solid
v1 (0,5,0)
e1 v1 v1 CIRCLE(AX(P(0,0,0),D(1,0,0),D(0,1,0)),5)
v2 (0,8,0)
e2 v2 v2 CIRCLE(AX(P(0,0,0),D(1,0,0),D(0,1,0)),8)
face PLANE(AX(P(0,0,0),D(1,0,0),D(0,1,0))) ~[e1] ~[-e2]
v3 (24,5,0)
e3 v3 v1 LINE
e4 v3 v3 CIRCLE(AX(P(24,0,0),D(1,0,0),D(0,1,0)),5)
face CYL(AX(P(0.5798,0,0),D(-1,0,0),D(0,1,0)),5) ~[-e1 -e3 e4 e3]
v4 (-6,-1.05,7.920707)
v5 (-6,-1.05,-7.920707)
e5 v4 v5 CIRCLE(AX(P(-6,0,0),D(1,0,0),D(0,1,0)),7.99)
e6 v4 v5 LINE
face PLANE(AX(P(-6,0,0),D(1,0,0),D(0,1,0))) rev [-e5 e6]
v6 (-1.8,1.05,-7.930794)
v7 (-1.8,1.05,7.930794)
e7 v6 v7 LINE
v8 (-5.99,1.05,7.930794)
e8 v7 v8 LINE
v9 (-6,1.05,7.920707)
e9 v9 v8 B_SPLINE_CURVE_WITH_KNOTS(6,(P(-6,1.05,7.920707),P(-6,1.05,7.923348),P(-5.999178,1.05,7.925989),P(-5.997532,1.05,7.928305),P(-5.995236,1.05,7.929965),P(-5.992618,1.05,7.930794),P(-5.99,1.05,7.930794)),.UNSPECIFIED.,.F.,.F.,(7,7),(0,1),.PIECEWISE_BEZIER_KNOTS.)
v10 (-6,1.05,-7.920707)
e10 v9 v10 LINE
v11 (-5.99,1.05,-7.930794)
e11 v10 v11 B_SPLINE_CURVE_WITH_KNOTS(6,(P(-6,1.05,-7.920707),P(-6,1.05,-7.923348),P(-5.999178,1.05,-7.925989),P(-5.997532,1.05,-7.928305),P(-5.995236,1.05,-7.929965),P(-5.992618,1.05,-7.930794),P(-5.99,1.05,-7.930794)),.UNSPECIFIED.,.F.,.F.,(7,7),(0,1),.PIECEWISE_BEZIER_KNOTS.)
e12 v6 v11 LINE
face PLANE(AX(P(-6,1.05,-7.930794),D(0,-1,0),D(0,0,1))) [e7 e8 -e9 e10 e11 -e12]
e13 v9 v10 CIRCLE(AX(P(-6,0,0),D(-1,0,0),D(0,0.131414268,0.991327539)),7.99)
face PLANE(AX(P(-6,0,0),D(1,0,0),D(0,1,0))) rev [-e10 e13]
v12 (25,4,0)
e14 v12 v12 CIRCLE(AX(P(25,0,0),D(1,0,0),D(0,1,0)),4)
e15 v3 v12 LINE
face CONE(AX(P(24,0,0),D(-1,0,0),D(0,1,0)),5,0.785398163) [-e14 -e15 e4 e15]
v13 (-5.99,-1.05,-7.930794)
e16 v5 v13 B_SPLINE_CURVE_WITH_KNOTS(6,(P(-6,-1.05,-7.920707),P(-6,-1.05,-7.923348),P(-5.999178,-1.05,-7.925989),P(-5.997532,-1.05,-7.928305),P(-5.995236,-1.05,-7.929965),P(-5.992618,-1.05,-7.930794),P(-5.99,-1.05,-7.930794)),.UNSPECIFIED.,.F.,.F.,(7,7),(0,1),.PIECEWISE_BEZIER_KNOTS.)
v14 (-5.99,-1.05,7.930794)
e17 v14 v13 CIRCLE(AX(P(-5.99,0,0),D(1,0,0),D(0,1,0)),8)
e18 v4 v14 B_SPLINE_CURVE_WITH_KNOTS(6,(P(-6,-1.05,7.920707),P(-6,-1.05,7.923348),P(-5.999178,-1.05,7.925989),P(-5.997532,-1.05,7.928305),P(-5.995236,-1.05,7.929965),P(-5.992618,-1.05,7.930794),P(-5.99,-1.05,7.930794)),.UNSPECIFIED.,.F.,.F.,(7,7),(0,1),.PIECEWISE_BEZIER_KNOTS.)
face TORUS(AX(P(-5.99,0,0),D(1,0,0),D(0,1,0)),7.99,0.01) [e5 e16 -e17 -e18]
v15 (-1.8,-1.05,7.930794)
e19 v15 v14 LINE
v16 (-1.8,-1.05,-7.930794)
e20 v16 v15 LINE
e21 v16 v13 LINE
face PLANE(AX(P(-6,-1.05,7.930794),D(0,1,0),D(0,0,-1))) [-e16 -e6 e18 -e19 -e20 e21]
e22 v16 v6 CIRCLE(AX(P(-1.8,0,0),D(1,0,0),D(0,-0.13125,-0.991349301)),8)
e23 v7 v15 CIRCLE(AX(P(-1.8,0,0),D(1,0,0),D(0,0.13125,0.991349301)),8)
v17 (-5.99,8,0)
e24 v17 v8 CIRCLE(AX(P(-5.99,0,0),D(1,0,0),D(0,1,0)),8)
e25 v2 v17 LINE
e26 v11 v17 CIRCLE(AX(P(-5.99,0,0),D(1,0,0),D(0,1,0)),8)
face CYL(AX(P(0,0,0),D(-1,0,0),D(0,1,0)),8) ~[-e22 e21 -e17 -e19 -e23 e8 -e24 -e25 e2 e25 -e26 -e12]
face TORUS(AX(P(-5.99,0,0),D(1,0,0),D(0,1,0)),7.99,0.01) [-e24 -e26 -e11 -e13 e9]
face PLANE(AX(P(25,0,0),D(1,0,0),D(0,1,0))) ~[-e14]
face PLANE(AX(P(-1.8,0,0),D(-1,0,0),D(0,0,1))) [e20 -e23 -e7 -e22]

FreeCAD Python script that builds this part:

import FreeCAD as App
import Part
import Sketcher

V = App.Vector
Q = App.Units.Quantity


def edges_at(feature, points):
    """Names of the edges that pass closest to the given points."""
    edges = feature.Shape.Edges
    near = lambda p: min(range(len(edges)), key=lambda i: edges[i].distToShape(Part.Vertex(*p))[0])
    return sorted({f"Edge{near(p) + 1}" for p in points})


def add_polygon(sketch, points):
    """Adds a closed chain of lines whose ends are joined by coincident constraints."""
    first, n = sketch.GeometryCount, len(points)
    for a, b in zip(points, points[1:] + points[:1]):
        sketch.addGeometry(Part.LineSegment(App.Vector(*a, 0), App.Vector(*b, 0)), False)
    for i in range(n):
        sketch.addConstraint(Sketcher.Constraint("Coincident", first + i, 2, first + (i + 1) % n, 1))

doc = App.newDocument("Part")
body = doc.addObject("PartDesign::Body", "Body")

sketch1 = body.newObject("Sketcher::SketchObject", "Sketch")
sketch1.AttachmentSupport = (doc.getObject("XY_Plane"), [""])
sketch1.MapMode = "FlatFace"
add_polygon(sketch1, [(-6, 8), (-6, 0), (25, 0), (25, 5), (0, 5), (0, 8)])
sketch1.addConstraint(Sketcher.Constraint("Vertical", 0))
sketch1.addConstraint(Sketcher.Constraint("Horizontal", 1))
sketch1.addConstraint(Sketcher.Constraint("Vertical", 2))
sketch1.addConstraint(Sketcher.Constraint("Horizontal", 3))
sketch1.addConstraint(Sketcher.Constraint("Vertical", 4))
sketch1.addConstraint(Sketcher.Constraint("Horizontal", 5))
sketch1.addConstraint(Sketcher.Constraint("PointOnObject", 0, 2, -1))
sketch1.addConstraint(Sketcher.Constraint("PointOnObject", 3, 2, -2))
sketch1.addConstraint(Sketcher.Constraint("DistanceX", 3, 2, 3, 1, Q("25 mm")))
sketch1.addConstraint(Sketcher.Constraint("DistanceX", 5, 2, 5, 1, Q("6 mm")))
sketch1.addConstraint(Sketcher.Constraint("DistanceY", 0, 2, 0, 1, Q("8 mm")))
sketch1.addConstraint(Sketcher.Constraint("DistanceY", 2, 1, 2, 2, Q("5 mm")))
revolution = body.newObject("PartDesign::Revolution", "Revolution")
revolution.Profile = sketch1
revolution.ReferenceAxis = (sketch1, ["H_Axis"])
revolution.Angle = 360
doc.recompute()

fillet = body.newObject("PartDesign::Fillet", "Fillet")
fillet.Base = (revolution, edges_at(revolution, [(-6, -8, 0)]))
fillet.Radius = 0.01

sketch2 = body.newObject("Sketcher::SketchObject", "Sketch001")
sketch2.AttachmentSupport = (doc.getObject("YZ_Plane"), [""])
sketch2.MapMode = "FlatFace"
sketch2.AttachmentOffset = App.Placement(V(0, 0, -6), App.Rotation())
add_polygon(sketch2, [(-1.1, 8), (1.1, 8), (1.1, -8), (-1.1, -8)])
sketch2.addConstraint(Sketcher.Constraint("Horizontal", 0))
sketch2.addConstraint(Sketcher.Constraint("Vertical", 1))
sketch2.addConstraint(Sketcher.Constraint("Horizontal", 2))
sketch2.addConstraint(Sketcher.Constraint("Vertical", 3))
sketch2.addConstraint(Sketcher.Constraint("Symmetric", 0, 2, 2, 2, -1, 1))
sketch2.addConstraint(Sketcher.Constraint("DistanceY", 1, 2, 1, 1, Q("16 mm")))
sketch2.addConstraint(Sketcher.Constraint("DistanceX", 0, 1, 0, 2, Q("2.1 mm")))
pocket1 = body.newObject("PartDesign::Pocket", "Pocket")
pocket1.Profile = sketch2
pocket1.Length = 4.2
pocket1.Reversed = True
doc.recompute()

chamfer = body.newObject("PartDesign::Chamfer", "Chamfer")
chamfer.Base = (pocket1, edges_at(pocket1, [(25, -5, 0)]))
chamfer.Size = 1

doc.recompute()
